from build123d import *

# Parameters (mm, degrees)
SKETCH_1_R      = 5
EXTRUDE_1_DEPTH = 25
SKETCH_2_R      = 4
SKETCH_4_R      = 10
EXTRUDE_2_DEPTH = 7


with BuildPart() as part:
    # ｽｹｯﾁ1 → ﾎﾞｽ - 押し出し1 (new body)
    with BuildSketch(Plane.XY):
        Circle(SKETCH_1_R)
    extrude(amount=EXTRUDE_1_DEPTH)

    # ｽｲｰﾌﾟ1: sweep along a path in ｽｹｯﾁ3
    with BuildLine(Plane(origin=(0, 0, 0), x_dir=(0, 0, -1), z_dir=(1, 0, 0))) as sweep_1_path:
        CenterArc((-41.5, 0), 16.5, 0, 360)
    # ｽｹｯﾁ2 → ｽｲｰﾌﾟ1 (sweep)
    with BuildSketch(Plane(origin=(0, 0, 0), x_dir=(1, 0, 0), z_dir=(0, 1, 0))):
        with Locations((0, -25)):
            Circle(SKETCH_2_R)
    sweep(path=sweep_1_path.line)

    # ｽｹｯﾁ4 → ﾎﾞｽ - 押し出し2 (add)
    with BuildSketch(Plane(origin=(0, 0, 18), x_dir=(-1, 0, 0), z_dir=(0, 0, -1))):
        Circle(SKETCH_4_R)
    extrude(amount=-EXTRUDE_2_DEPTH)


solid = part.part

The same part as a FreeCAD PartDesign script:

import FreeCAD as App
import Part
import Sketcher
Q = App.Units.Quantity

doc = App.newDocument("Part")
params = doc.addObject("Spreadsheet::Sheet", "Params")
for row, (alias, value) in enumerate([
    ("sketch1_diameter", "10 mm"),
    ("pad1_length", "25 mm"),
    ("sketch2_diameter", "8 mm"),
    ("sketch3_diameter", "33 mm"),
    ("sketch4_diameter", "20 mm"),
    ("pad2_length", "7 mm"),
], start=1):
    params.set(f"A{row}", alias)
    params.set(f"B{row}", "=" + value)
    params.setAlias(f"B{row}", alias)

body = doc.addObject("PartDesign::Body", "Body")

# Sketch on XY plane
sketch1 = body.newObject("Sketcher::SketchObject", "Sketch")
sketch1.AttachmentSupport = (doc.getObject("XY_Plane"), [""])
sketch1.MapMode = "FlatFace"
sketch1.addGeometry(Part.Circle(App.Vector(0, 0, 0), App.Vector(0, 0, 1), 5), False)
sketch1.addConstraint(Sketcher.Constraint("Coincident", 0, 3, -1, 1))
sketch1.addConstraint(Sketcher.Constraint("Diameter", 0, Q("10 mm")))
sketch1.setExpression("Constraints[1]", "Params.sketch1_diameter")
pad1 = body.newObject("PartDesign::Pad", "Pad")
pad1.Profile = sketch1
pad1.setExpression("Length", "Params.pad1_length")

# Sketch on XZ plane
sketch2 = body.newObject("Sketcher::SketchObject", "Sketch001")
sketch2.AttachmentSupport = (doc.getObject("XZ_Plane"), [""])
sketch2.MapMode = "FlatFace"
sketch2.addGeometry(Part.Circle(App.Vector(0, 25, 0), App.Vector(0, 0, 1), 4), False)
sketch2.addConstraint(Sketcher.Constraint("PointOnObject", 0, 3, -2))
sketch2.addConstraint(Sketcher.Constraint("Diameter", 0, Q("8 mm")))
sketch2.addConstraint(Sketcher.Constraint("DistanceY", -1, 1, 0, 3, Q("25 mm")))
sketch2.setExpression("Constraints[1]", "Params.sketch2_diameter")

# Sketch on YZ plane
sketch3 = body.newObject("Sketcher::SketchObject", "Sketch002")
sketch3.AttachmentSupport = (doc.getObject("YZ_Plane"), [""])
sketch3.MapMode = "FlatFace"
sketch3.addGeometry(Part.Circle(App.Vector(0, 42, 0), App.Vector(0, 0, 1), 16), False)
sketch3.addConstraint(Sketcher.Constraint("PointOnObject", 0, 3, -2))
sketch3.addConstraint(Sketcher.Constraint("Diameter", 0, Q("33 mm")))
sketch3.addConstraint(Sketcher.Constraint("DistanceY", -1, 1, 0, 3, Q("41.5 mm")))
sketch3.setExpression("Constraints[1]", "Params.sketch3_diameter")
doc.recompute()

additivepipe = body.newObject("PartDesign::AdditivePipe", "AdditivePipe")
additivepipe.Profile = sketch2
additivepipe.Spine = (sketch3, ["Edge1"])

# Sketch on XY plane
sketch4 = body.newObject("Sketcher::SketchObject", "Sketch003")
sketch4.AttachmentSupport = (doc.getObject("XY_Plane"), [""])
sketch4.MapMode = "FlatFace"
sketch4.AttachmentOffset = App.Placement(App.Vector(0, 0, 18), App.Rotation())
sketch4.addGeometry(Part.Circle(App.Vector(0, 0, 0), App.Vector(0, 0, 1), 10), False)
sketch4.addConstraint(Sketcher.Constraint("Coincident", 0, 3, -1, 1))
sketch4.addConstraint(Sketcher.Constraint("Diameter", 0, Q("20 mm")))
sketch4.setExpression("Constraints[1]", "Params.sketch4_diameter")
pad2 = body.newObject("PartDesign::Pad", "Pad001")
pad2.Profile = sketch4
pad2.setExpression("Length", "Params.pad2_length")

doc.recompute()
